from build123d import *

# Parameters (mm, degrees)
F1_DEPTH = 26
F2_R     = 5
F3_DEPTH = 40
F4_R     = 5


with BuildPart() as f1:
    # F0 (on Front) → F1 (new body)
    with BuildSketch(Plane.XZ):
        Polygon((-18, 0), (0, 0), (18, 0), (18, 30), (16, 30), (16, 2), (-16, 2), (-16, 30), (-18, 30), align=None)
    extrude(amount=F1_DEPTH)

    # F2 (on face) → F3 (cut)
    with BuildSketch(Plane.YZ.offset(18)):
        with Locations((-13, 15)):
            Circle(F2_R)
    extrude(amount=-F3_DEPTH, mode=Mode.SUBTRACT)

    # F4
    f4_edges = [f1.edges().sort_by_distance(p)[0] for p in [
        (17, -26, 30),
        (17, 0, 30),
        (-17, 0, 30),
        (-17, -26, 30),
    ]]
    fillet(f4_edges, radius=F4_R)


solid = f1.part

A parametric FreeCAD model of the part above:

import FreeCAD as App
import Part
import Sketcher

V = App.Vector


def edges_at(feature, points):
    """Names of the edges that pass closest to the given points."""
    edges = feature.Shape.Edges
    near = lambda p: min(range(len(edges)), key=lambda i: edges[i].distToShape(Part.Vertex(*p))[0])
    return sorted({f"Edge{near(p) + 1}" for p in points})


def add_polygon(sketch, points):
    """Adds a closed chain of lines whose ends are joined by coincident constraints."""
    first, n = sketch.GeometryCount, len(points)
    for a, b in zip(points, points[1:] + points[:1]):
        sketch.addGeometry(Part.LineSegment(App.Vector(*a, 0), App.Vector(*b, 0)), False)
    for i in range(n):
        sketch.addConstraint(Sketcher.Constraint("Coincident", first + i, 2, first + (i + 1) % n, 1))

doc = App.newDocument("Part")
params = doc.addObject("Spreadsheet::Sheet", "Params")
for row, (alias, value) in enumerate([
    ("sketch1_width", "36 mm"),
    ("sketch1_width2", "2 mm"),
    ("sketch1_height", "30 mm"),
    ("sketch1_height2", "28 mm"),
    ("pad1_length", "26 mm"),
    ("sketch2_diameter", "10 mm"),
    ("pocket1_length", "40 mm"),
    ("fillet_radius", "5 mm"),
], start=1):
    params.set(f"A{row}", alias)
    params.set(f"B{row}", "=" + value)
    params.setAlias(f"B{row}", alias)

body = doc.addObject("PartDesign::Body", "Body")

# Sketch on XZ plane
sketch1 = body.newObject("Sketcher::SketchObject", "Sketch")
sketch1.AttachmentSupport = (doc.getObject("XZ_Plane"), [""])
sketch1.MapMode = "FlatFace"
add_polygon(sketch1, [(-18, 0), (18, 0), (18, 30), (16, 30), (16, 2), (-16, 2), (-16, 30), (-18, 30)])  # lines 0-7
sketch1.addConstraint([
    Sketcher.Constraint("Horizontal", 0),
    Sketcher.Constraint("Vertical", 1),
    Sketcher.Constraint("Horizontal", 2),
    Sketcher.Constraint("Vertical", 3),
    Sketcher.Constraint("Horizontal", 4),
    Sketcher.Constraint("Vertical", 5),
    Sketcher.Constraint("Horizontal", 6),
    Sketcher.Constraint("Vertical", 7),
    Sketcher.Constraint("Symmetric", 0, 2, 7, 2, -1, 1),
    Sketcher.Constraint("Symmetric", 2, 2, 5, 2, -2),
    Sketcher.Constraint("DistanceX", 0, 1, 0, 2, 36.0),
    Sketcher.Constraint("DistanceX", 2, 2, 2, 1, 2.0),
    Sketcher.Constraint("DistanceY", 1, 1, 1, 2, 30.0),
    Sketcher.Constraint("DistanceY", 3, 2, 3, 1, 28.0),
])
sketch1.setExpression("Constraints[18]", "Params.sketch1_width")
sketch1.setExpression("Constraints[19]", "Params.sketch1_width2")
sketch1.setExpression("Constraints[20]", "Params.sketch1_height")
sketch1.setExpression("Constraints[21]", "Params.sketch1_height2")
pad1 = body.newObject("PartDesign::Pad", "Pad")
pad1.Profile = sketch1
pad1.setExpression("Length", "Params.pad1_length")

# Sketch on YZ plane
sketch2 = body.newObject("Sketcher::SketchObject", "Sketch001")
sketch2.AttachmentSupport = (doc.getObject("YZ_Plane"), [""])
sketch2.MapMode = "FlatFace"
sketch2.AttachmentOffset = App.Placement(V(0, 0, 18), App.Rotation())
sketch2.addGeometry(Part.Circle(V(-13, 15, 0), V(0, 0, 1), 5), False)
sketch2.addConstraint([
    Sketcher.Constraint("Diameter", 0, 10.0),
    Sketcher.Constraint("DistanceX", 0, 3, -1, 1, 13.0),
    Sketcher.Constraint("DistanceY", -1, 1, 0, 3, 15.0),
])
sketch2.setExpression("Constraints[0]", "Params.sketch2_diameter")
pocket1 = body.newObject("PartDesign::Pocket", "Pocket")
pocket1.Profile = sketch2
pocket1.setExpression("Length", "Params.pocket1_length")
doc.recompute()

fillet = body.newObject("PartDesign::Fillet", "Fillet")
fillet.Base = (pocket1, edges_at(pocket1, [
    (17, -26, 30),
    (17, 0, 30),
    (-17, 0, 30),
    (-17, -26, 30),
]))
fillet.setExpression("Radius", "Params.fillet_radius")

doc.recompute()
